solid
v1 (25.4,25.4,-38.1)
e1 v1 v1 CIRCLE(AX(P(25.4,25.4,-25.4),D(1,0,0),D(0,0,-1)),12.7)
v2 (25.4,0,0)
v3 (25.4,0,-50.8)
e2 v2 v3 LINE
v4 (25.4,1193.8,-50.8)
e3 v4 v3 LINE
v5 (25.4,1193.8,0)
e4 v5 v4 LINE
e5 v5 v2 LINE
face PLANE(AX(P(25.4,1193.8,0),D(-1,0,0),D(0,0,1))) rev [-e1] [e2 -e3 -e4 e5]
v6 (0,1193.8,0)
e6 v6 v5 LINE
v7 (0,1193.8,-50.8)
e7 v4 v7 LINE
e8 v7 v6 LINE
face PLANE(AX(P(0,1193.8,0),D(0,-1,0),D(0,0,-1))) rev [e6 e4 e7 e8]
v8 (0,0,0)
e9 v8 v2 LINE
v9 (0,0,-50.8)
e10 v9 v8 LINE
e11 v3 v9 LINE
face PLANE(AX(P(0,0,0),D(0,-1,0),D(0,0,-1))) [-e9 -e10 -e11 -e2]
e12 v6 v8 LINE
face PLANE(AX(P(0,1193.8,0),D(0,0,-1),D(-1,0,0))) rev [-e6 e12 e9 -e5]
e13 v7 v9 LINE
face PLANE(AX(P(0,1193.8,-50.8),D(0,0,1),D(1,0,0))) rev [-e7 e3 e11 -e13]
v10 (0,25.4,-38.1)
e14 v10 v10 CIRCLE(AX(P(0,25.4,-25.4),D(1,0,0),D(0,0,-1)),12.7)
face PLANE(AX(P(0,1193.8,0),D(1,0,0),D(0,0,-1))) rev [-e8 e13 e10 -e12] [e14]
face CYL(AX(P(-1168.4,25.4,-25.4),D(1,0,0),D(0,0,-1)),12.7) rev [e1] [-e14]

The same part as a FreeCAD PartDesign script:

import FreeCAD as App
import Part
import Sketcher
Q = App.Units.Quantity


def add_polygon(sketch, points):
    """Adds a closed chain of lines whose ends are joined by coincident constraints."""
    first, n = sketch.GeometryCount, len(points)
    for a, b in zip(points, points[1:] + points[:1]):
        sketch.addGeometry(Part.LineSegment(App.Vector(*a, 0), App.Vector(*b, 0)), False)
    for i in range(n):
        sketch.addConstraint(Sketcher.Constraint("Coincident", first + i, 2, first + (i + 1) % n, 1))

doc = App.newDocument("Part")
body = doc.addObject("PartDesign::Body", "Body")

sketch1 = body.newObject("Sketcher::SketchObject", "Sketch")
sketch1.AttachmentSupport = (doc.getObject("XZ_Plane"), [""])
sketch1.MapMode = "FlatFace"
add_polygon(sketch1, [(0, -51), (0, 0), (25, 0), (25, -51)])
sketch1.addConstraint([
    Sketcher.Constraint("Vertical", 0),
    Sketcher.Constraint("Horizontal", 1),
    Sketcher.Constraint("Vertical", 2),
    Sketcher.Constraint("Horizontal", 3),
    Sketcher.Constraint("Coincident", 0, 2, -1, 1),
    Sketcher.Constraint("DistanceX", 1, 1, 1, 2, Q("1 in")),
    Sketcher.Constraint("DistanceY", 0, 1, 0, 2, Q("2 in")),
])
pad1 = body.newObject("PartDesign::Pad", "Pad")
pad1.Profile = sketch1
pad1.Length = Q("47 in")
pad1.Reversed = True

sketch2 = body.newObject("Sketcher::SketchObject", "Sketch001")
sketch2.AttachmentSupport = (doc.getObject("YZ_Plane"), [""])
sketch2.MapMode = "FlatFace"
sketch2.AttachmentOffset = App.Placement(App.Vector(0, 0, 1 * 25.4), App.Rotation())
sketch2.addGeometry(Part.Circle(App.Vector(25, -25, 0), App.Vector(0, 0, 1), 13), False)
sketch2.addConstraint([
    Sketcher.Constraint("Diameter", 0, Q("1 in")),
    Sketcher.Constraint("DistanceX", -1, 1, 0, 3, Q("1 in")),
    Sketcher.Constraint("DistanceY", 0, 3, -1, 1, Q("1 in")),
])
pocket1 = body.newObject("PartDesign::Pocket", "Pocket")
pocket1.Profile = sketch2
pocket1.Length = Q("47 in")

doc.recompute()
